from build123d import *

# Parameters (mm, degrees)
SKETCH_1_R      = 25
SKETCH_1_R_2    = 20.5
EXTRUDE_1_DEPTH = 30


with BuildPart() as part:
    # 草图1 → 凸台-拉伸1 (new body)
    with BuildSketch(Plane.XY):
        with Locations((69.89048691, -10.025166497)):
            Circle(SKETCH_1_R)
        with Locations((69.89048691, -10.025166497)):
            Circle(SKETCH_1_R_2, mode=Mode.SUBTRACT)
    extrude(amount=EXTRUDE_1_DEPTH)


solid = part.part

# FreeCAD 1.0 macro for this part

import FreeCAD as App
import Part
import Sketcher

V = App.Vector
Q = App.Units.Quantity

doc = App.newDocument("Part")
body = doc.addObject("PartDesign::Body", "Body")

sketch1 = body.newObject("Sketcher::SketchObject", "Sketch")
sketch1.AttachmentSupport = (doc.getObject("XY_Plane"), [""])
sketch1.MapMode = "FlatFace"
sketch1.addGeometry([
    Part.Circle(V(70, -10, 0), V(0, 0, 1), 25),
    Part.Circle(V(70, -10, 0), V(0, 0, 1), 20),
], False)
sketch1.addConstraint([
    Sketcher.Constraint("Coincident", 1, 3, 0, 3),
    Sketcher.Constraint("Diameter", 0, Q("50 mm")),
    Sketcher.Constraint("Diameter", 1, Q("41 mm")),
    Sketcher.Constraint("DistanceX", -1, 1, 0, 3, Q("69.890487 mm")),
    Sketcher.Constraint("DistanceY", 0, 3, -1, 1, Q("10.025166 mm")),
])
pad1 = body.newObject("PartDesign::Pad", "Pad")
pad1.Profile = sketch1
pad1.Length = 30

doc.recompute()
